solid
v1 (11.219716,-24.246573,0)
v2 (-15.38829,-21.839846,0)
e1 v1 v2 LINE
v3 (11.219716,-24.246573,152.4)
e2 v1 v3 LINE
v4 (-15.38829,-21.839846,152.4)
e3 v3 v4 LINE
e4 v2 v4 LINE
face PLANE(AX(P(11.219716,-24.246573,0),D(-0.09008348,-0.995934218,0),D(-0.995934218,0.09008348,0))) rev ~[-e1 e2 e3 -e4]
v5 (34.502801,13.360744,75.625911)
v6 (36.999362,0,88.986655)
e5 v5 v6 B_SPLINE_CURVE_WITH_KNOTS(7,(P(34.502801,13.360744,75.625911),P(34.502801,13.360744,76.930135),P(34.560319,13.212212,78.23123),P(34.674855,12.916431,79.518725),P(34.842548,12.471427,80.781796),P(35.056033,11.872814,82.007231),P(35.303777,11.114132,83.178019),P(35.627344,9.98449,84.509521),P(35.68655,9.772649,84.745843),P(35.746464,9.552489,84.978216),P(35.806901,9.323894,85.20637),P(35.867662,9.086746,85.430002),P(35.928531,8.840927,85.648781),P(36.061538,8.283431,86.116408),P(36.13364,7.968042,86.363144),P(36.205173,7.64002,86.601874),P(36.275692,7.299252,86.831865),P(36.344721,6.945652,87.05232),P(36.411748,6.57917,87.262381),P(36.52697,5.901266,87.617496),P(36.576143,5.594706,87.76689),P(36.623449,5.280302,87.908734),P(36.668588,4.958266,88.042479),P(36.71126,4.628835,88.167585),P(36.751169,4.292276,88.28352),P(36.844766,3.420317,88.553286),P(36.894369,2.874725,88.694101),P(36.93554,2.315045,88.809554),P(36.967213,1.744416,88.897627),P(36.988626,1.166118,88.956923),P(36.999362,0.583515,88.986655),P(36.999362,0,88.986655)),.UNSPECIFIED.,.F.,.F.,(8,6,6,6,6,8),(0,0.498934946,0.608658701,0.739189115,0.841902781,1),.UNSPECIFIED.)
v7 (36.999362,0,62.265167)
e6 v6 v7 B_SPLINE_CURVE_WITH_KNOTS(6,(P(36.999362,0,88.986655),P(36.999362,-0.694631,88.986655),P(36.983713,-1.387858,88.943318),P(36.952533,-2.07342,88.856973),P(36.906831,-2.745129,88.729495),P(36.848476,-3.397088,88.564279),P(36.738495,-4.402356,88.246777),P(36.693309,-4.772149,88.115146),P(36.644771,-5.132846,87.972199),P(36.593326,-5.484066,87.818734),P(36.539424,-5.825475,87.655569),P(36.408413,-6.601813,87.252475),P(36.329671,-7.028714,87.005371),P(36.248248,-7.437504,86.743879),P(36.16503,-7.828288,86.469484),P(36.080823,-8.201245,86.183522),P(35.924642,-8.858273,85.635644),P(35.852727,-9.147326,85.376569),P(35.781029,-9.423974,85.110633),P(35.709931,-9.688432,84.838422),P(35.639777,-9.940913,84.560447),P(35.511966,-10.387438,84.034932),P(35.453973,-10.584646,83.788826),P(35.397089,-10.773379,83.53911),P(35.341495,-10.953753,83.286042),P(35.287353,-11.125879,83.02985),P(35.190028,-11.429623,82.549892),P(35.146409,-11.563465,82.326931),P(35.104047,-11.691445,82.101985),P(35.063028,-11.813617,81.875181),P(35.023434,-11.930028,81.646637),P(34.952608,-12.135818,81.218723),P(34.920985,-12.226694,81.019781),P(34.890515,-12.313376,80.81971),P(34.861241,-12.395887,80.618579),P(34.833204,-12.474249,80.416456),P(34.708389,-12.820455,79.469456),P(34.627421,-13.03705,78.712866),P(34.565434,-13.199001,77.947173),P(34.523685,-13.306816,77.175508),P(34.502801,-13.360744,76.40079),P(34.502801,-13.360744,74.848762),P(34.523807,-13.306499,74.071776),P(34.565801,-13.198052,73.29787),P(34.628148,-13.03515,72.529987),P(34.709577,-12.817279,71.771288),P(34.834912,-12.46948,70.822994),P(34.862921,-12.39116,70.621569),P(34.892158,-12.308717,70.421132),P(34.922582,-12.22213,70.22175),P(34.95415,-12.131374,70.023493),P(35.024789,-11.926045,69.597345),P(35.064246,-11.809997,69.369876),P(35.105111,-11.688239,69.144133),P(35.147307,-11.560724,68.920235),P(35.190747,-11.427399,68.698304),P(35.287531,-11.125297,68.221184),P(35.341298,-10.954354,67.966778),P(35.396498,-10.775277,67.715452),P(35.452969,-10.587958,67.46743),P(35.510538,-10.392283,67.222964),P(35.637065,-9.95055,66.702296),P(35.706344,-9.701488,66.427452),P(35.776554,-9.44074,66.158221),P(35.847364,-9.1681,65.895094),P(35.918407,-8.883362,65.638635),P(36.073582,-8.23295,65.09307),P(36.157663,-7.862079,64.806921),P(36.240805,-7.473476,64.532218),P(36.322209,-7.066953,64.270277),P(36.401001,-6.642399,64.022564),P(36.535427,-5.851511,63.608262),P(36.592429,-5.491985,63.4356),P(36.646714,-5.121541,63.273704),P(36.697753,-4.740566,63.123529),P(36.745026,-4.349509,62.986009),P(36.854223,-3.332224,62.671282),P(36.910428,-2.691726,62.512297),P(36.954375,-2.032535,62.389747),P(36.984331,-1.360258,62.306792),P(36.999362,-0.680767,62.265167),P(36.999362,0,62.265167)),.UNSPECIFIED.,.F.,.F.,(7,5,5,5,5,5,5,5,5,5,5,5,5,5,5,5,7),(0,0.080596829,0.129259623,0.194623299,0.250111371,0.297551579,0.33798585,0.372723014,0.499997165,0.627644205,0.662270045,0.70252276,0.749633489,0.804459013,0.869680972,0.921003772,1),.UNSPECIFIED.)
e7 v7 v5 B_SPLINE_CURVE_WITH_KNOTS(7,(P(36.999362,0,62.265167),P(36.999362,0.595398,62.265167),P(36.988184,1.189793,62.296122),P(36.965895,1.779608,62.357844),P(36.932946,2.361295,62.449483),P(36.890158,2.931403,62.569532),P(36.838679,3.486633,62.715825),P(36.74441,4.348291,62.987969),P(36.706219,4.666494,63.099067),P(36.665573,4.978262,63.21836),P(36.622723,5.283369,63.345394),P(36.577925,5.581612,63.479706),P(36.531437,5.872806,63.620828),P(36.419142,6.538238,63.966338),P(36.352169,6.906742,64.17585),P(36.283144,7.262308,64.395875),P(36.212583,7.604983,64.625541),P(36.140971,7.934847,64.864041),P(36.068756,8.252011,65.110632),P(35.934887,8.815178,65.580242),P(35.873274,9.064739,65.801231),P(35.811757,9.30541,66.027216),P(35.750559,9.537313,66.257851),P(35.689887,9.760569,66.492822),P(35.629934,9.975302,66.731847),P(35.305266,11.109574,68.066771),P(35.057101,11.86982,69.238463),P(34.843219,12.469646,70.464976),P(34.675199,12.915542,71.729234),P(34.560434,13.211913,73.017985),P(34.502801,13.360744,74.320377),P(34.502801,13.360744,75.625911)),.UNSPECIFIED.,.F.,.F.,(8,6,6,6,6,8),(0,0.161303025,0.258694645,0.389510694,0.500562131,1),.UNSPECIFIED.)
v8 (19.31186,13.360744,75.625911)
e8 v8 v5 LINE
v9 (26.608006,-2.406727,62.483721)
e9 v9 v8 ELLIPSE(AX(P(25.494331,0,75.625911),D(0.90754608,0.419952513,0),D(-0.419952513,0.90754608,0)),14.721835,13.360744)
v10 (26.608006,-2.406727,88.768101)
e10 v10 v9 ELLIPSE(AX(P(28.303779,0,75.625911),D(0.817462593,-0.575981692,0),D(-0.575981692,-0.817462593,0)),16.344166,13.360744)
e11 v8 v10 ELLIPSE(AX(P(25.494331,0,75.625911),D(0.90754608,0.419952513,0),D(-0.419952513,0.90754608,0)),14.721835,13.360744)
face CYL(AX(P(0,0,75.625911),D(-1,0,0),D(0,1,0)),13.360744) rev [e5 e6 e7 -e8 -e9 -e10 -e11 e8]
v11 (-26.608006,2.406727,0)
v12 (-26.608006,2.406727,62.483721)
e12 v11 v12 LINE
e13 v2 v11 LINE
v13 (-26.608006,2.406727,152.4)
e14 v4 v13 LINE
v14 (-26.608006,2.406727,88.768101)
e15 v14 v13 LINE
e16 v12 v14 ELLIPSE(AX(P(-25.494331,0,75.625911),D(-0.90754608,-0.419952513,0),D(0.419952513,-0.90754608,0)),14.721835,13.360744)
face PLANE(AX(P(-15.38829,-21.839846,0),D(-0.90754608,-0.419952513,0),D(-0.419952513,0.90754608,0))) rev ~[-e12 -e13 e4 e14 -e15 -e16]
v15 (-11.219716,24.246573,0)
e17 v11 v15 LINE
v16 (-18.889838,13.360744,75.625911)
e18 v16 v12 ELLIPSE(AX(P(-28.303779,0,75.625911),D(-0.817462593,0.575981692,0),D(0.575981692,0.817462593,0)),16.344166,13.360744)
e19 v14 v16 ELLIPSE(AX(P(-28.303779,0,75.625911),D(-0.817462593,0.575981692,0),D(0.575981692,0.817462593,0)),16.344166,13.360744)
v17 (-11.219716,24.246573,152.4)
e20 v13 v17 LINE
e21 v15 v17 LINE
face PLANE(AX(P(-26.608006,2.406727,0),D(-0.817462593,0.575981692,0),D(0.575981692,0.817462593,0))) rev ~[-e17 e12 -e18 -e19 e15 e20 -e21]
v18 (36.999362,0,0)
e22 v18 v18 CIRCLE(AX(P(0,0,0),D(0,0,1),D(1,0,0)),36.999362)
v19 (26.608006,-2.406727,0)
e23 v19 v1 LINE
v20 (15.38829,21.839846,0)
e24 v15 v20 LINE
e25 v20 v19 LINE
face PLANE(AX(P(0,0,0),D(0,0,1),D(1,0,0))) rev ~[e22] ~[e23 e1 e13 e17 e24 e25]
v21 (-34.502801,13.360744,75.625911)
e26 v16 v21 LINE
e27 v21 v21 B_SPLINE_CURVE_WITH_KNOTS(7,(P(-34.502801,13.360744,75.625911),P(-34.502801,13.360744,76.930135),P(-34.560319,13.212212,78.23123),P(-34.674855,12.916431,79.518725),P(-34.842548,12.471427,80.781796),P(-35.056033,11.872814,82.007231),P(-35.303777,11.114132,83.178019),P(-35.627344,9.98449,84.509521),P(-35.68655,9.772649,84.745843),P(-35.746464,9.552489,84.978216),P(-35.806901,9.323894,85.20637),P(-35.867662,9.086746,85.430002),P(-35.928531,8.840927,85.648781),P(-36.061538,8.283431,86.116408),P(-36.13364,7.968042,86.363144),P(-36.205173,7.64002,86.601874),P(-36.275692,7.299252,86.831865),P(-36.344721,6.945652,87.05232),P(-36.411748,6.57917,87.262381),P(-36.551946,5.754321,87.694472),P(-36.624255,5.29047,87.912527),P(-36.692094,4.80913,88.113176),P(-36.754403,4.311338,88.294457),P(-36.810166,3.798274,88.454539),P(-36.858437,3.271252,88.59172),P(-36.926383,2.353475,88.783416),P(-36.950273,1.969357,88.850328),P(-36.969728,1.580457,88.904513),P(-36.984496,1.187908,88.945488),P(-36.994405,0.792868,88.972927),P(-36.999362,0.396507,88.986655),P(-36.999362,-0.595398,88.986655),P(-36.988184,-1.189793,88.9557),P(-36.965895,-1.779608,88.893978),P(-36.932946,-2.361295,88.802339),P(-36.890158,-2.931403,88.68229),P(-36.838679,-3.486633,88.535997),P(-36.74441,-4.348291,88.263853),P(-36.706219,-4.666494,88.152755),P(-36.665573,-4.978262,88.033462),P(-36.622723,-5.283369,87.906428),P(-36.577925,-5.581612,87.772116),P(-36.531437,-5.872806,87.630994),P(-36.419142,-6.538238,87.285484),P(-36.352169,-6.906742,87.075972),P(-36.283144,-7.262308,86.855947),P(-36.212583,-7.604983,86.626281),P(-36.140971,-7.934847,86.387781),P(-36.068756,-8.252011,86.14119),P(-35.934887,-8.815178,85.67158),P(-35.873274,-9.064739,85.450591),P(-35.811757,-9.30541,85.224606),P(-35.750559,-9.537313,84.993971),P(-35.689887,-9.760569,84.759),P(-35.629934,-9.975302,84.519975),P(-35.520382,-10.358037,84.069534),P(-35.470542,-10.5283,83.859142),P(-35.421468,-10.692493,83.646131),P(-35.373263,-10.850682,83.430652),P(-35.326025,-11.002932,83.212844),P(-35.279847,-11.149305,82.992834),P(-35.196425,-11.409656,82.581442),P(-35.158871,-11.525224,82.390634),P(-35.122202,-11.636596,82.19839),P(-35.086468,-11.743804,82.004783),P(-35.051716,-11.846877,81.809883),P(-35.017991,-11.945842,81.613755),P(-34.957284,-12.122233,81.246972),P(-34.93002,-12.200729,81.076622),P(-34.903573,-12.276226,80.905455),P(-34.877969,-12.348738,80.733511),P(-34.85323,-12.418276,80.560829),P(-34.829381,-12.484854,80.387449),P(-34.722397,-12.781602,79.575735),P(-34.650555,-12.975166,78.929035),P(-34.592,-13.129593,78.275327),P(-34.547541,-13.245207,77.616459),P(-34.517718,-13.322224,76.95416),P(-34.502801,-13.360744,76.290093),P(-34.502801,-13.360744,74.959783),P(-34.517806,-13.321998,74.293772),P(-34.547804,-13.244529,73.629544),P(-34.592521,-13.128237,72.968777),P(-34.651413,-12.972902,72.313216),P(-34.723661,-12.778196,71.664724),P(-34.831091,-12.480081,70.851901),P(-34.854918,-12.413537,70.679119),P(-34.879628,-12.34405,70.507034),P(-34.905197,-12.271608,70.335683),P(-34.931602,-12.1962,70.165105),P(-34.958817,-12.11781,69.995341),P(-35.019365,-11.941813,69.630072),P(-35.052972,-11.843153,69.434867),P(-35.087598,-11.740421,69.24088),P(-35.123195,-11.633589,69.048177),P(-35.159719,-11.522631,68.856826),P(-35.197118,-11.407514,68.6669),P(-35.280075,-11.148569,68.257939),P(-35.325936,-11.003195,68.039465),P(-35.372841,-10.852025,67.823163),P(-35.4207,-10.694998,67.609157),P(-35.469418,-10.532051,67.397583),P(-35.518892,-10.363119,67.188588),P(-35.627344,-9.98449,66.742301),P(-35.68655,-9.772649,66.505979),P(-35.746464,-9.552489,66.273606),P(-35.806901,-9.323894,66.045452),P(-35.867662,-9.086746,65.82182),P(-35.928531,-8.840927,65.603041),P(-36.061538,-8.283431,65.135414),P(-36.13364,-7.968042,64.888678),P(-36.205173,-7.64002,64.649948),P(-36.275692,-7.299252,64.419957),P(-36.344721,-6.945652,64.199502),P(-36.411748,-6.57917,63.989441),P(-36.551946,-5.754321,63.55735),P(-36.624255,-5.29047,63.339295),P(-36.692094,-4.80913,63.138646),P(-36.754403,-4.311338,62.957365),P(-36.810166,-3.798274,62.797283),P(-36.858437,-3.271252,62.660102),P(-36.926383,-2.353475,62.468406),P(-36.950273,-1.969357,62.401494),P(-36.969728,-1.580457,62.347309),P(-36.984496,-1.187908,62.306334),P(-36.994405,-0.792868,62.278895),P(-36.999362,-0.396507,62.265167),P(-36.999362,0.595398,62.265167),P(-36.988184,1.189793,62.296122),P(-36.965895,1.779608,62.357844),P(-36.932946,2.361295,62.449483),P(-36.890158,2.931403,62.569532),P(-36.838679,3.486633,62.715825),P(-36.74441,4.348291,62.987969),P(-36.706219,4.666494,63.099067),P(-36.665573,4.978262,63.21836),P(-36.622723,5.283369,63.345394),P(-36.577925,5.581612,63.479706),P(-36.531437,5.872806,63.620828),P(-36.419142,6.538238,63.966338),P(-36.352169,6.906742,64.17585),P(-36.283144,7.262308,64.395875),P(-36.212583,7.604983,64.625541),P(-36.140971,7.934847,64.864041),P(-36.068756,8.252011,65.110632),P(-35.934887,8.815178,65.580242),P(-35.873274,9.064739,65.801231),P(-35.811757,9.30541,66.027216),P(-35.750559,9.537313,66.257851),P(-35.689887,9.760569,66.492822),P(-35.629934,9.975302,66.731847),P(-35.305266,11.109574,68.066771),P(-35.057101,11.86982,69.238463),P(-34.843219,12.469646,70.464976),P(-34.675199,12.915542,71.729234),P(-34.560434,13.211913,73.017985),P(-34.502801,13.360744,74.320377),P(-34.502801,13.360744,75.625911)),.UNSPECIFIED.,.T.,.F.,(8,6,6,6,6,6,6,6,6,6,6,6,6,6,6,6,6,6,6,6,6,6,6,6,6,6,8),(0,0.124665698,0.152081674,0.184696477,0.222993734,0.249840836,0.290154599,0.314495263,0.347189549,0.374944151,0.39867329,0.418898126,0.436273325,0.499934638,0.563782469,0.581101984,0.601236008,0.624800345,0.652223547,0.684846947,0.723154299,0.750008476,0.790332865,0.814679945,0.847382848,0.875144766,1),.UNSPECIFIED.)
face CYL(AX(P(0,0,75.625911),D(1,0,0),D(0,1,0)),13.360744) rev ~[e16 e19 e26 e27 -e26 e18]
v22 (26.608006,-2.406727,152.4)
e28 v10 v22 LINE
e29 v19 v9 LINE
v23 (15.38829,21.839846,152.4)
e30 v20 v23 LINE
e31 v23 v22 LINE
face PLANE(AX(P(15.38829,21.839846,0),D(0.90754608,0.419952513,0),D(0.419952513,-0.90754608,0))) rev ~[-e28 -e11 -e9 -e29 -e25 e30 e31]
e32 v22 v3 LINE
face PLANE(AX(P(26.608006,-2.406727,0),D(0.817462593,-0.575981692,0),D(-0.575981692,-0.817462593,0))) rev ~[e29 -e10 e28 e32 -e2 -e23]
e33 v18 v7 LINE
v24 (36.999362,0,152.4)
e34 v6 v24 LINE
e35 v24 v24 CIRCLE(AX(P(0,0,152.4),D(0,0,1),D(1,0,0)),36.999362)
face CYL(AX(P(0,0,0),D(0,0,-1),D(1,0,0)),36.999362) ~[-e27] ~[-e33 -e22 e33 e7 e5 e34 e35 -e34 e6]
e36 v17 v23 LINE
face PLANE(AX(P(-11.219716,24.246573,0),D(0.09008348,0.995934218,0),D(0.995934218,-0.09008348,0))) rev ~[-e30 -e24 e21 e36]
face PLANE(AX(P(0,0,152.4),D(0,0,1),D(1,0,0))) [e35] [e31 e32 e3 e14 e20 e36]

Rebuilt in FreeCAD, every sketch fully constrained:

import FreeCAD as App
import Part
import Sketcher


def add_polygon(sketch, points):
    """Adds a closed chain of lines whose ends are joined by coincident constraints."""
    first, n = sketch.GeometryCount, len(points)
    for a, b in zip(points, points[1:] + points[:1]):
        sketch.addGeometry(Part.LineSegment(App.Vector(*a, 0), App.Vector(*b, 0)), False)
    for i in range(n):
        sketch.addConstraint(Sketcher.Constraint("Coincident", first + i, 2, first + (i + 1) % n, 1))

doc = App.newDocument("Part")
params = doc.addObject("Spreadsheet::Sheet", "Params")
for row, (alias, value) in enumerate([
    ("pad1_length", "6 in"),
], start=1):
    params.set(f"A{row}", alias)
    params.set(f"B{row}", "=" + value)
    params.setAlias(f"B{row}", alias)

body = doc.addObject("PartDesign::Body", "Body")

# Sketch on XY plane
sketch1 = body.newObject("Sketcher::SketchObject", "Sketch")
sketch1.AttachmentSupport = (doc.getObject("XY_Plane"), [""])
sketch1.MapMode = "FlatFace"
sketch1.addGeometry(Part.Circle(App.Vector(0, 0, 0), App.Vector(0, 0, 1), 36.999362), False)  # 0
add_polygon(sketch1, [(26.608006, -2.406727), (11.219716, -24.246573), (-15.38829, -21.839846), (-26.608006, 2.406727), (-11.219716, 24.246573), (15.38829, 21.839846)])  # lines 1-6
sketch1.addConstraint(Sketcher.Constraint("Coincident", 0, 3, -1, 1))
sketch1.addConstraint(Sketcher.Constraint("Symmetric", 1, 2, 4, 2, -1, 1))
sketch1.addConstraint(Sketcher.Constraint("Symmetric", 2, 2, 5, 2, -1, 1))
sketch1.addConstraint(Sketcher.Constraint("Symmetric", 3, 2, 6, 2, -1, 1))
sketch1.addConstraint(Sketcher.Constraint("Equal", 1, 2))
sketch1.addConstraint(Sketcher.Constraint("Equal", 2, 3))
sketch1.addConstraint(Sketcher.Constraint("Diameter", 0, 73.998724))
sketch1.addConstraint(Sketcher.Constraint("DistanceY", 1, 2, 3, 2, 26.6533))
sketch1.addConstraint(Sketcher.Constraint("Distance", 1, 26.71663))
sketch1.addConstraint(Sketcher.Constraint("DistanceX", 2, 2, -1, 1, 15.38829))
sketch1.addConstraint(Sketcher.Constraint("DistanceX", 3, 2, 4, 2, 15.38829))
pad1 = body.newObject("PartDesign::Pad", "Pad")
pad1.Profile = sketch1
pad1.setExpression("Length", "Params.pad1_length")

# Sketch on YZ plane
sketch2 = body.newObject("Sketcher::SketchObject", "Sketch001")
sketch2.AttachmentSupport = (doc.getObject("YZ_Plane"), [""])
sketch2.MapMode = "FlatFace"
sketch2.addGeometry(Part.Circle(App.Vector(0, 75.625911, 0), App.Vector(0, 0, 1), 13.360744), False)
sketch2.addConstraint(Sketcher.Constraint("PointOnObject", 0, 3, -2))
sketch2.addConstraint(Sketcher.Constraint("Diameter", 0, 26.721488))
sketch2.addConstraint(Sketcher.Constraint("DistanceY", -1, 1, 0, 3, 75.625911))
pocket1 = body.newObject("PartDesign::Pocket", "Pocket")
pocket1.Profile = sketch2
pocket1.Type = "ThroughAll"
pocket1.Midplane = True

doc.recompute()
